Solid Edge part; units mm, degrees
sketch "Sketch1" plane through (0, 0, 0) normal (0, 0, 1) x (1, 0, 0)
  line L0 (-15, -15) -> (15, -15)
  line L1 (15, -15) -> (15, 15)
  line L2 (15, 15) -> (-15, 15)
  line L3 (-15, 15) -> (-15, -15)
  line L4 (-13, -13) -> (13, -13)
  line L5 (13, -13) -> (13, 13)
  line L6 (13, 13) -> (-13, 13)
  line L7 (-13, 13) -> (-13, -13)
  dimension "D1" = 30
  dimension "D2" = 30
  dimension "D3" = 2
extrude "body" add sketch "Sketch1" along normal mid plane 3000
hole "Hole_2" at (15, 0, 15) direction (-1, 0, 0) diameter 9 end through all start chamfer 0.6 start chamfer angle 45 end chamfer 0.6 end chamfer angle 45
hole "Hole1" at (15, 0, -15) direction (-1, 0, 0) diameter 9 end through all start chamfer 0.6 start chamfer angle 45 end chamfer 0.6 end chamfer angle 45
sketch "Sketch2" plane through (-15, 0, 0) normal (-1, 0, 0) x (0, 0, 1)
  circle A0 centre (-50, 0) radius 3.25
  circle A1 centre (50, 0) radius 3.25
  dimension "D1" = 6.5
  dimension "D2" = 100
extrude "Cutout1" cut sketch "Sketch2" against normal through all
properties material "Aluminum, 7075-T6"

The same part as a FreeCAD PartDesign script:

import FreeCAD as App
import Part
import Sketcher

doc = App.newDocument("Part")
body = doc.addObject("PartDesign::Body", "Body")

# Sketch on XY plane
sketch1 = body.newObject("Sketcher::SketchObject", "Sketch")
sketch1.AttachmentSupport = (doc.getObject("XY_Plane"), [""])
sketch1.MapMode = "FlatFace"
sketch1.addGeometry([
    Part.LineSegment(App.Vector(-15, 15, 0), App.Vector(-15, -15, 0)),  # 0
    Part.LineSegment(App.Vector(-15, -15, 0), App.Vector(15, -15, 0)),  # 1
    Part.LineSegment(App.Vector(15, -15, 0), App.Vector(15, 15, 0)),  # 2
    Part.LineSegment(App.Vector(15, 15, 0), App.Vector(-15, 15, 0)),  # 3
    Part.LineSegment(App.Vector(13, -13, 0), App.Vector(-13, -13, 0)),  # 4
    Part.LineSegment(App.Vector(-13, -13, 0), App.Vector(-13, 13, 0)),  # 5
    Part.LineSegment(App.Vector(-13, 13, 0), App.Vector(13, 13, 0)),  # 6
    Part.LineSegment(App.Vector(13, 13, 0), App.Vector(13, -13, 0)),  # 7
], False)
sketch1.addConstraint([
    Sketcher.Constraint("Coincident", 0, 2, 1, 1),
    Sketcher.Constraint("Coincident", 1, 2, 2, 1),
    Sketcher.Constraint("Coincident", 2, 2, 3, 1),
    Sketcher.Constraint("Coincident", 3, 2, 0, 1),
    Sketcher.Constraint("Coincident", 4, 2, 5, 1),
    Sketcher.Constraint("Coincident", 5, 2, 6, 1),
    Sketcher.Constraint("Coincident", 6, 2, 7, 1),
    Sketcher.Constraint("Coincident", 7, 2, 4, 1),
    Sketcher.Constraint("Vertical", 0),
    Sketcher.Constraint("Horizontal", 1),
    Sketcher.Constraint("Vertical", 2),
    Sketcher.Constraint("Horizontal", 3),
    Sketcher.Constraint("Horizontal", 4),
    Sketcher.Constraint("Vertical", 5),
    Sketcher.Constraint("Horizontal", 6),
    Sketcher.Constraint("Vertical", 7),
    Sketcher.Constraint("Symmetric", 0, 2, 2, 2, -1, 1),
    Sketcher.Constraint("Symmetric", 4, 2, 6, 2, -1, 1),
    Sketcher.Constraint("Equal", 3, 0),
    Sketcher.Constraint("Equal", 6, 5),
    Sketcher.Constraint("DistanceX", 0, 2, -1, 1, 15.0),
    Sketcher.Constraint("DistanceX", 4, 2, 4, 1, 26.0),
])
pad1 = body.newObject("PartDesign::Pad", "Pad")
pad1.Profile = sketch1
pad1.Length = 3000
pad1.Midplane = True

# Sketch on YZ plane
sketch2 = body.newObject("Sketcher::SketchObject", "Sketch001")
sketch2.AttachmentSupport = (doc.getObject("YZ_Plane"), [""])
sketch2.MapMode = "FlatFace"
sketch2.AttachmentOffset = App.Placement(App.Vector(0, 0, 15), App.Rotation())
sketch2.addGeometry(Part.Circle(App.Vector(0, 15, 0), App.Vector(0, 0, 1), 4.5), False)
sketch2.addConstraint([
    Sketcher.Constraint("PointOnObject", 0, 3, -2),
    Sketcher.Constraint("Diameter", 0, 9.0),
    Sketcher.Constraint("DistanceY", -1, 1, 0, 3, 15.0),
])
doc.recompute()
hole = body.newObject("PartDesign::Hole", "Hole")
hole.Profile = sketch2
hole.ThreadType = "None"
hole.Diameter = 9
hole.DepthType = "ThroughAll"

# Sketch on YZ plane
sketch3 = body.newObject("Sketcher::SketchObject", "Sketch002")
sketch3.AttachmentSupport = (doc.getObject("YZ_Plane"), [""])
sketch3.MapMode = "FlatFace"
sketch3.AttachmentOffset = App.Placement(App.Vector(0, 0, 15), App.Rotation())
sketch3.addGeometry(Part.Circle(App.Vector(0, -15, 0), App.Vector(0, 0, 1), 4.5), False)
sketch3.addConstraint([
    Sketcher.Constraint("PointOnObject", 0, 3, -2),
    Sketcher.Constraint("Diameter", 0, 9.0),
    Sketcher.Constraint("DistanceY", 0, 3, -1, 1, 15.0),
])
doc.recompute()
hole2 = body.newObject("PartDesign::Hole", "Hole001")
hole2.Profile = sketch3
hole2.ThreadType = "None"
hole2.Diameter = 9
hole2.DepthType = "ThroughAll"

# Sketch on YZ plane
sketch4 = body.newObject("Sketcher::SketchObject", "Sketch003")
sketch4.AttachmentSupport = (doc.getObject("YZ_Plane"), [""])
sketch4.MapMode = "FlatFace"
sketch4.AttachmentOffset = App.Placement(App.Vector(0, 0, -15), App.Rotation())
sketch4.addGeometry([
    Part.Circle(App.Vector(0, -50, 0), App.Vector(0, 0, 1), 3.2),
    Part.Circle(App.Vector(0, 50, 0), App.Vector(0, 0, 1), 3.2),
], False)
sketch4.addConstraint([
    Sketcher.Constraint("Equal", 0, 1),
    Sketcher.Constraint("Symmetric", 0, 3, 1, 3, -1, 1),
    Sketcher.Constraint("PointOnObject", 0, 3, -2),
    Sketcher.Constraint("Diameter", 0, 6.5),
    Sketcher.Constraint("DistanceY", 0, 3, -1, 1, 50.0),
])
pocket1 = body.newObject("PartDesign::Pocket", "Pocket")
pocket1.Profile = sketch4
pocket1.Type = "ThroughAll"
pocket1.Reversed = True

doc.recompute()
